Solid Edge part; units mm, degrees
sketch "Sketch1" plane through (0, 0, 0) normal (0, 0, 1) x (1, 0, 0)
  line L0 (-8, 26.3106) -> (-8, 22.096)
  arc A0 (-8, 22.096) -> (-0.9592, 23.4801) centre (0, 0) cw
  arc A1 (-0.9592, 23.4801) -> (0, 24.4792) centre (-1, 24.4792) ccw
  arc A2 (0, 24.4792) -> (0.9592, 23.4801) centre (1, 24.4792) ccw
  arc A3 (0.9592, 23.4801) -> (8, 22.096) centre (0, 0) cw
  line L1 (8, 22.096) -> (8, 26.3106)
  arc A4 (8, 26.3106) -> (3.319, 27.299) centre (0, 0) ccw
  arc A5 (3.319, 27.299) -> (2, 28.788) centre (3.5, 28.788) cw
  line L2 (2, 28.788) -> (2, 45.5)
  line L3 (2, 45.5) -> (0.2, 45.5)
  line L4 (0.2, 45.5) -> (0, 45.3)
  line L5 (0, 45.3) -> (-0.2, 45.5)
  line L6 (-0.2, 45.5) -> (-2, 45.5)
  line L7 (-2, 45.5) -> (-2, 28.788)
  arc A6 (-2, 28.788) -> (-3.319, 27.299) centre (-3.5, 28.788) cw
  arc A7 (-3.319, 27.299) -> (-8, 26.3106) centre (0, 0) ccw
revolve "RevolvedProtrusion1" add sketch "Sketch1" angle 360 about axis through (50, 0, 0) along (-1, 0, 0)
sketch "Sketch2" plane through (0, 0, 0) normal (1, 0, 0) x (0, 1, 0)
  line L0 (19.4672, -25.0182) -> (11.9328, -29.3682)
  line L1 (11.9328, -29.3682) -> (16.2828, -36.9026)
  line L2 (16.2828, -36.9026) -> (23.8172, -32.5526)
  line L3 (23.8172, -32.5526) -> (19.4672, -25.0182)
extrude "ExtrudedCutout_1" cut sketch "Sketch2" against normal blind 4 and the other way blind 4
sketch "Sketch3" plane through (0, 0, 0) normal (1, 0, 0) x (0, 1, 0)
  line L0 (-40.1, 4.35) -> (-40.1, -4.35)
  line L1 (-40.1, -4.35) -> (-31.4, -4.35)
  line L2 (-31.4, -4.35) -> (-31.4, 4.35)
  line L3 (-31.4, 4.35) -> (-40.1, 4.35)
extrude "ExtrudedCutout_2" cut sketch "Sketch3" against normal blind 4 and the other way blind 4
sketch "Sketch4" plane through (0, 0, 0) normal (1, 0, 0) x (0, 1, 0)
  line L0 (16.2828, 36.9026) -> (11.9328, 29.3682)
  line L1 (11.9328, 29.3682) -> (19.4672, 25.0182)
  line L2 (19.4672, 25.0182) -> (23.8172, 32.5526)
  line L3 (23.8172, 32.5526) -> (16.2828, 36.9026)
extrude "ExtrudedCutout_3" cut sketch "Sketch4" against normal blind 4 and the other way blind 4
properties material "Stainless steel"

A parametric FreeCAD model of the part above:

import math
import FreeCAD as App
import Part
import Sketcher

V = App.Vector
Q = App.Units.Quantity


def add_polygon(sketch, points):
    """Adds a closed chain of lines whose ends are joined by coincident constraints."""
    first, n = sketch.GeometryCount, len(points)
    for a, b in zip(points, points[1:] + points[:1]):
        sketch.addGeometry(Part.LineSegment(App.Vector(*a, 0), App.Vector(*b, 0)), False)
    for i in range(n):
        sketch.addConstraint(Sketcher.Constraint("Coincident", first + i, 2, first + (i + 1) % n, 1))

doc = App.newDocument("Part")
body = doc.addObject("PartDesign::Body", "Body")

# Sketch on XY plane
sketch1 = body.newObject("Sketcher::SketchObject", "Sketch")
sketch1.AttachmentSupport = (doc.getObject("XY_Plane"), [""])
sketch1.MapMode = "FlatFace"
sketch1.addGeometry([
    Part.ArcOfCircle(Part.Circle(V(-0.001372, 0.008262, 0), V(0, 0, 1), 27.491654), math.radians(96.931213), math.radians(106.91469)),  # 0
    Part.LineSegment(V(-8, 26.3106, 0), V(-8, 22.096, 0)),  # 1
    Part.ArcOfCircle(Part.Circle(V(0.000473, -0.001706, 0), V(0, 0, 1), 23.501408), math.radians(92.340308), math.radians(109.902787)),  # 2
    Part.ArcOfCircle(Part.Circle(V(-1, 24.4792, 0), V(0, 0, 1), 0.999933), math.radians(-87.661526), math.radians(0)),  # 3
    Part.ArcOfCircle(Part.Circle(V(1, 24.4792, 0), V(0, 0, 1), 1), math.radians(180), math.radians(267.661526)),  # 4
    Part.ArcOfCircle(Part.Circle(V(0.000207, 0.001758, 0), V(0, 0, 1), 23.49792), math.radians(70.095899), math.radians(87.661006)),  # 5
    Part.LineSegment(V(8, 22.096, 0), V(8, 26.3106, 0)),  # 6
    Part.ArcOfCircle(Part.Circle(V(-0.002086, -0.008116, 0), V(0, 0, 1), 27.50833), math.radians(73.088343), math.radians(83.065753)),  # 7
    Part.ArcOfCircle(Part.Circle(V(3.5, 28.788, 0), V(0, 0, 1), 1.499961), math.radians(180), math.radians(263.069238)),  # 8
    Part.LineSegment(V(2, 28.788, 0), V(2, 45.5, 0)),  # 9
    Part.LineSegment(V(2, 45.5, 0), V(0.2, 45.5, 0)),  # 10
    Part.LineSegment(V(0.2, 45.5, 0), V(0, 45.3, 0)),  # 11
    Part.LineSegment(V(0, 45.3, 0), V(-0.2, 45.5, 0)),  # 12
    Part.LineSegment(V(-0.2, 45.5, 0), V(-2, 45.5, 0)),  # 13
    Part.LineSegment(V(-2, 45.5, 0), V(-2, 28.788, 0)),  # 14
    Part.ArcOfCircle(Part.Circle(V(-3.5, 28.788, 0), V(0, 0, 1), 1.5), math.radians(-83.069238), math.radians(0)),  # 15
], False)
sketch1.addConstraint([
    Sketcher.Constraint("Coincident", 0, 2, 1, 1),
    Sketcher.Constraint("Coincident", 1, 2, 2, 2),
    Sketcher.Constraint("Tangent", 2, 1, 3, 1),
    Sketcher.Constraint("Tangent", 3, 2, 4, 1),
    Sketcher.Constraint("Tangent", 4, 2, 5, 2),
    Sketcher.Constraint("Coincident", 5, 1, 6, 1),
    Sketcher.Constraint("Coincident", 6, 2, 7, 1),
    Sketcher.Constraint("Tangent", 7, 2, 8, 2),
    Sketcher.Constraint("Tangent", 8, 1, 9, 1),
    Sketcher.Constraint("Coincident", 9, 2, 10, 1),
    Sketcher.Constraint("Coincident", 10, 2, 11, 1),
    Sketcher.Constraint("Coincident", 11, 2, 12, 1),
    Sketcher.Constraint("Coincident", 12, 2, 13, 1),
    Sketcher.Constraint("Coincident", 13, 2, 14, 1),
    Sketcher.Constraint("Tangent", 14, 2, 15, 2),
    Sketcher.Constraint("Tangent", 15, 1, 0, 1),
    Sketcher.Constraint("Vertical", 1),
    Sketcher.Constraint("Vertical", 6),
    Sketcher.Constraint("Vertical", 9),
    Sketcher.Constraint("Horizontal", 10),
    Sketcher.Constraint("Horizontal", 13),
    Sketcher.Constraint("Vertical", 14),
    Sketcher.Constraint("Equal", 3, 4),
    Sketcher.Constraint("Equal", 8, 15),
    Sketcher.Constraint("Symmetric", 3, 3, 4, 3, -2),
    Sketcher.Constraint("Symmetric", 8, 3, 15, 3, -2),
    Sketcher.Constraint("Symmetric", 1, 2, 5, 1, -2),
    Sketcher.Constraint("Symmetric", 10, 2, 12, 2, -2),
    Sketcher.Constraint("Symmetric", 2, 3, 5, 3, -1),
    Sketcher.Constraint("PointOnObject", 11, 2, -2),
    Sketcher.Constraint("Perpendicular", 11, 12),
    Sketcher.Constraint("Horizontal", 0, 2, 6, 2),
    Sketcher.Constraint("Radius", 3, 1.0),
    Sketcher.Constraint("Radius", 8, 1.5),
    Sketcher.Constraint("DistanceX", 10, 2, 10, 1, 1.8),
    Sketcher.Constraint("DistanceX", 0, 2, -1, 1, 8.0),
    Sketcher.Constraint("DistanceX", -1, 1, 8, 1, 2.0),
    Sketcher.Constraint("Radius", 5, 23.498),
    Sketcher.Constraint("DistanceY", -1, 1, 9, 2, 45.5),
    Sketcher.Constraint("Radius", 0, 27.4917),
    Sketcher.Constraint("Radius", 2, 23.5014),
    Sketcher.Constraint("Radius", 7, 27.5083),
    Sketcher.Constraint("DistanceY", 9, 1, 9, 2, 16.712),
    Sketcher.Constraint("DistanceY", 2, 3, 0, 3, 0.01),
])
revolution = body.newObject("PartDesign::Revolution", "Revolution")
revolution.Profile = sketch1
revolution.ReferenceAxis = (sketch1, ["H_Axis"])
revolution.Angle = 360

# Sketch on YZ plane
sketch2 = body.newObject("Sketcher::SketchObject", "Sketch001")
sketch2.AttachmentSupport = (doc.getObject("YZ_Plane"), [""])
sketch2.MapMode = "FlatFace"
add_polygon(sketch2, [(24, -33), (19, -25), (12, -29), (16, -37)])  # lines 0-3
sketch2.addConstraint([
    Sketcher.Constraint("Perpendicular", 0, 1),
    Sketcher.Constraint("Perpendicular", 1, 2),
    Sketcher.Constraint("Perpendicular", 2, 3),
    Sketcher.Constraint("Equal", 0, 1),
    Sketcher.Constraint("Angle", 0, Q("120 deg")),
    Sketcher.Constraint("Distance", 0, 8.7),
    Sketcher.Constraint("DistanceX", -1, 1, 0, 2, 19.4672),
    Sketcher.Constraint("DistanceY", 0, 2, -1, 1, 25.0182),
])
pocket1 = body.newObject("PartDesign::Pocket", "Pocket")
pocket1.Profile = sketch2
pocket1.Type = "ThroughAll"
pocket1.Midplane = True

# Sketch on YZ plane
sketch3 = body.newObject("Sketcher::SketchObject", "Sketch002")
sketch3.AttachmentSupport = (doc.getObject("YZ_Plane"), [""])
sketch3.MapMode = "FlatFace"
add_polygon(sketch3, [(-31, 4), (-40, 4), (-40, -4), (-31, -4)])  # lines 0-3
sketch3.addConstraint([
    Sketcher.Constraint("Horizontal", 0),
    Sketcher.Constraint("Vertical", 1),
    Sketcher.Constraint("Horizontal", 2),
    Sketcher.Constraint("Vertical", 3),
    Sketcher.Constraint("Equal", 2, 1),
    Sketcher.Constraint("DistanceX", 0, 2, 0, 1, 8.7),
    Sketcher.Constraint("DistanceX", 0, 2, -1, 1, 40.1),
    Sketcher.Constraint("DistanceY", -1, 1, 0, 2, 4.35),
])
pocket2 = body.newObject("PartDesign::Pocket", "Pocket001")
pocket2.Profile = sketch3
pocket2.Type = "ThroughAll"
pocket2.Midplane = True

# Sketch on YZ plane
sketch4 = body.newObject("Sketcher::SketchObject", "Sketch003")
sketch4.AttachmentSupport = (doc.getObject("YZ_Plane"), [""])
sketch4.MapMode = "FlatFace"
add_polygon(sketch4, [(24, 33), (16, 37), (12, 29), (19, 25)])  # lines 0-3
sketch4.addConstraint([
    Sketcher.Constraint("Perpendicular", 0, 1),
    Sketcher.Constraint("Perpendicular", 1, 2),
    Sketcher.Constraint("Perpendicular", 2, 3),
    Sketcher.Constraint("Equal", 0, 1),
    Sketcher.Constraint("Angle", 0, Q("150 deg")),
    Sketcher.Constraint("Distance", 0, 8.7),
    Sketcher.Constraint("DistanceX", -1, 1, 0, 2, 16.2828),
    Sketcher.Constraint("DistanceY", -1, 1, 0, 2, 36.9026),
])
pocket3 = body.newObject("PartDesign::Pocket", "Pocket002")
pocket3.Profile = sketch4
pocket3.Type = "ThroughAll"
pocket3.Midplane = True

doc.recompute()
